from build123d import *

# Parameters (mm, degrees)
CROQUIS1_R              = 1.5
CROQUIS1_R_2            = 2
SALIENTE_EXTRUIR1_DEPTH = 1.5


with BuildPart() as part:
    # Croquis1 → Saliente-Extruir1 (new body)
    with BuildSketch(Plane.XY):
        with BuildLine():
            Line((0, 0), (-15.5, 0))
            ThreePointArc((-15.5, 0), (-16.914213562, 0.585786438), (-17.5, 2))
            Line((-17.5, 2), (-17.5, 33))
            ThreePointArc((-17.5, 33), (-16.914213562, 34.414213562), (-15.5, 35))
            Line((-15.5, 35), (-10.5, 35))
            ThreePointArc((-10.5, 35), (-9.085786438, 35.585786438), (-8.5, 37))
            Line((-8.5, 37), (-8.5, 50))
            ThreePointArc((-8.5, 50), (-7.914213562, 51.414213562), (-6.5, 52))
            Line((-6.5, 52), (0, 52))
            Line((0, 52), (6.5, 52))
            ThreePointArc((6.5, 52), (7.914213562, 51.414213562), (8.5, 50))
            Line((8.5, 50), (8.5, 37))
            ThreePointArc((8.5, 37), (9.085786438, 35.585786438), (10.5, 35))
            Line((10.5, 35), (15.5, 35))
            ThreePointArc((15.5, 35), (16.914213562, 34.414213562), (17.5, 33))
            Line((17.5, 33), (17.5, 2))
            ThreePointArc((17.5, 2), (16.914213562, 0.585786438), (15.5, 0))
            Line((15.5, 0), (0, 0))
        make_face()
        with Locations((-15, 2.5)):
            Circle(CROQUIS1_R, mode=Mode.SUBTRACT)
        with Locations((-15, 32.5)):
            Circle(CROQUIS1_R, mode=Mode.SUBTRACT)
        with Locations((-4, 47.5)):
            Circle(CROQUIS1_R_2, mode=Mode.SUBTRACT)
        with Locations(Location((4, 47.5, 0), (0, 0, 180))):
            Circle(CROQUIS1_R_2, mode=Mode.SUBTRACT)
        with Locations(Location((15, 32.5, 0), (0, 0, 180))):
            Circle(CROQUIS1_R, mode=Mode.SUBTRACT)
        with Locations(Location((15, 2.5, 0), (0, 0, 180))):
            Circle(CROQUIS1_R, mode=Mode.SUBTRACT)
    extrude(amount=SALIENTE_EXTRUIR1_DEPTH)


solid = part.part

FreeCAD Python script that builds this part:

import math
import FreeCAD as App
import Part
import Sketcher

V = App.Vector

doc = App.newDocument("Part")
params = doc.addObject("Spreadsheet::Sheet", "Params")
for row, (alias, value) in enumerate([
    ("sketch1_diameter", "3 mm"),
    ("sketch1_diameter2", "4 mm"),
    ("sketch1_width", "31 mm"),
    ("sketch1_width2", "5 mm"),
    ("pad1_length", "1.5 mm"),
], start=1):
    params.set(f"A{row}", alias)
    params.set(f"B{row}", "=" + value)
    params.setAlias(f"B{row}", alias)

body = doc.addObject("PartDesign::Body", "Body")

# Sketch on XY plane
sketch1 = doc.addObject("Sketcher::SketchObject", "Sketch")
body.addObject(sketch1)
sketch1.AttachmentSupport = (doc.XY_Plane, [""])
sketch1.MapMode = "FlatFace"
sketch1.addGeometry(Part.ArcOfCircle(Part.Circle(V(-15.5, 2, 0), V(0, 0, 1), 2), math.radians(-180), math.radians(-90)), False)
sketch1.addGeometry(Part.LineSegment(V(-15.5, 0, 0), V(15.5, 0, 0)), False)
sketch1.addGeometry(Part.ArcOfCircle(Part.Circle(V(15.5, 2, 0), V(0, 0, 1), 2), math.radians(-90), math.radians(0)), False)
sketch1.addGeometry(Part.LineSegment(V(17.5, 2, 0), V(17.5, 33, 0)), False)
sketch1.addGeometry(Part.ArcOfCircle(Part.Circle(V(15.5, 33, 0), V(0, 0, 1), 2), math.radians(0), math.radians(90)), False)
sketch1.addGeometry(Part.LineSegment(V(15.5, 35, 0), V(10.5, 35, 0)), False)
sketch1.addGeometry(Part.ArcOfCircle(Part.Circle(V(10.5, 37, 0), V(0, 0, 1), 2), math.radians(-180), math.radians(-90)), False)
sketch1.addGeometry(Part.LineSegment(V(8.5, 37, 0), V(8.5, 50, 0)), False)
sketch1.addGeometry(Part.ArcOfCircle(Part.Circle(V(6.5, 50, 0), V(0, 0, 1), 2), math.radians(0), math.radians(90)), False)
sketch1.addGeometry(Part.LineSegment(V(6.5, 52, 0), V(-6.5, 52, 0)), False)
sketch1.addGeometry(Part.ArcOfCircle(Part.Circle(V(-6.5, 50, 0), V(0, 0, 1), 2), math.radians(90), math.radians(180)), False)
sketch1.addGeometry(Part.LineSegment(V(-8.5, 50, 0), V(-8.5, 37, 0)), False)
sketch1.addGeometry(Part.ArcOfCircle(Part.Circle(V(-10.5, 37, 0), V(0, 0, 1), 2), math.radians(-90), math.radians(0)), False)
sketch1.addGeometry(Part.LineSegment(V(-10.5, 35, 0), V(-15.5, 35, 0)), False)
sketch1.addGeometry(Part.ArcOfCircle(Part.Circle(V(-15.5, 33, 0), V(0, 0, 1), 2), math.radians(90), math.radians(180)), False)
sketch1.addGeometry(Part.LineSegment(V(-17.5, 33, 0), V(-17.5, 2, 0)), False)
sketch1.addGeometry(Part.Circle(V(15, 2.5, 0), V(0, 0, 1), 1.5), False)
sketch1.addGeometry(Part.Circle(V(-15, 2.5, 0), V(0, 0, 1), 1.5), False)
sketch1.addGeometry(Part.Circle(V(15, 32.5, 0), V(0, 0, 1), 1.5), False)
sketch1.addGeometry(Part.Circle(V(4, 47.5, 0), V(0, 0, 1), 2), False)
sketch1.addGeometry(Part.Circle(V(-15, 32.5, 0), V(0, 0, 1), 1.5), False)
sketch1.addGeometry(Part.Circle(V(-4, 47.5, 0), V(0, 0, 1), 2), False)
sketch1.addConstraint(Sketcher.Constraint("Tangent", 0, 2, 1, 1))
sketch1.addConstraint(Sketcher.Constraint("Tangent", 1, 2, 2, 1))
sketch1.addConstraint(Sketcher.Constraint("Tangent", 2, 2, 3, 1))
sketch1.addConstraint(Sketcher.Constraint("Tangent", 3, 2, 4, 1))
sketch1.addConstraint(Sketcher.Constraint("Tangent", 4, 2, 5, 1))
sketch1.addConstraint(Sketcher.Constraint("Tangent", 5, 2, 6, 2))
sketch1.addConstraint(Sketcher.Constraint("Tangent", 6, 1, 7, 1))
sketch1.addConstraint(Sketcher.Constraint("Tangent", 7, 2, 8, 1))
sketch1.addConstraint(Sketcher.Constraint("Tangent", 8, 2, 9, 1))
sketch1.addConstraint(Sketcher.Constraint("Tangent", 9, 2, 10, 1))
sketch1.addConstraint(Sketcher.Constraint("Tangent", 10, 2, 11, 1))
sketch1.addConstraint(Sketcher.Constraint("Tangent", 11, 2, 12, 2))
sketch1.addConstraint(Sketcher.Constraint("Tangent", 12, 1, 13, 1))
sketch1.addConstraint(Sketcher.Constraint("Tangent", 13, 2, 14, 1))
sketch1.addConstraint(Sketcher.Constraint("Tangent", 14, 2, 15, 1))
sketch1.addConstraint(Sketcher.Constraint("Tangent", 15, 2, 0, 1))
sketch1.addConstraint(Sketcher.Constraint("Horizontal", 1))
sketch1.addConstraint(Sketcher.Constraint("Vertical", 3))
sketch1.addConstraint(Sketcher.Constraint("Horizontal", 5))
sketch1.addConstraint(Sketcher.Constraint("Vertical", 7))
sketch1.addConstraint(Sketcher.Constraint("Horizontal", 9))
sketch1.addConstraint(Sketcher.Constraint("Vertical", 11))
sketch1.addConstraint(Sketcher.Constraint("Horizontal", 13))
sketch1.addConstraint(Sketcher.Constraint("Vertical", 15))
sketch1.addConstraint(Sketcher.Constraint("Equal", 0, 2))
sketch1.addConstraint(Sketcher.Constraint("Equal", 2, 4))
sketch1.addConstraint(Sketcher.Constraint("Equal", 4, 6))
sketch1.addConstraint(Sketcher.Constraint("Equal", 6, 8))
sketch1.addConstraint(Sketcher.Constraint("Equal", 8, 10))
sketch1.addConstraint(Sketcher.Constraint("Equal", 10, 12))
sketch1.addConstraint(Sketcher.Constraint("Equal", 12, 14))
sketch1.addConstraint(Sketcher.Constraint("Equal", 16, 17))
sketch1.addConstraint(Sketcher.Constraint("Equal", 17, 18))
sketch1.addConstraint(Sketcher.Constraint("Equal", 14, 19))
sketch1.addConstraint(Sketcher.Constraint("Equal", 18, 20))
sketch1.addConstraint(Sketcher.Constraint("Equal", 19, 21))
sketch1.addConstraint(Sketcher.Constraint("Symmetric", 0, 2, 1, 2, -1, 1))
sketch1.addConstraint(Sketcher.Constraint("Symmetric", 6, 3, 12, 3, -2))
sketch1.addConstraint(Sketcher.Constraint("Symmetric", 16, 3, 17, 3, -2))
sketch1.addConstraint(Sketcher.Constraint("Symmetric", 18, 3, 20, 3, -2))
sketch1.addConstraint(Sketcher.Constraint("Symmetric", 19, 3, 21, 3, -2))
sketch1.addConstraint(Sketcher.Constraint("Vertical", 16, 3, 18, 3))
sketch1.addConstraint(Sketcher.Constraint("Equal", 1, 3))
sketch1.addConstraint(Sketcher.Constraint("Equal", 9, 7))
sketch1.addConstraint(Sketcher.Constraint("Diameter", 16, 3.0))
sketch1.addConstraint(Sketcher.Constraint("Diameter", 19, 4.0))
sketch1.addConstraint(Sketcher.Constraint("DistanceX", 1, 1, 1, 2, 31.0))
sketch1.addConstraint(Sketcher.Constraint("DistanceX", 5, 2, 5, 1, 5.0))
sketch1.addConstraint(Sketcher.Constraint("DistanceX", -1, 1, 16, 3, 15.0))
sketch1.addConstraint(Sketcher.Constraint("DistanceX", -1, 1, 19, 3, 4.0))
sketch1.addConstraint(Sketcher.Constraint("DistanceY", 20, 3, 19, 3, 15.0))
sketch1.addConstraint(Sketcher.Constraint("DistanceY", -1, 1, 16, 3, 2.5))
sketch1.addConstraint(Sketcher.Constraint("DistanceY", -1, 1, 18, 3, 32.5))
sketch1.setExpression("Constraints[44]", "Params.sketch1_diameter")
sketch1.setExpression("Constraints[45]", "Params.sketch1_diameter2")
sketch1.setExpression("Constraints[46]", "Params.sketch1_width")
sketch1.setExpression("Constraints[47]", "Params.sketch1_width2")
pad1 = doc.addObject("PartDesign::Pad", "Pad")
body.addObject(pad1)
pad1.Profile = sketch1
pad1.setExpression("Length", "Params.pad1_length")

doc.recompute()
